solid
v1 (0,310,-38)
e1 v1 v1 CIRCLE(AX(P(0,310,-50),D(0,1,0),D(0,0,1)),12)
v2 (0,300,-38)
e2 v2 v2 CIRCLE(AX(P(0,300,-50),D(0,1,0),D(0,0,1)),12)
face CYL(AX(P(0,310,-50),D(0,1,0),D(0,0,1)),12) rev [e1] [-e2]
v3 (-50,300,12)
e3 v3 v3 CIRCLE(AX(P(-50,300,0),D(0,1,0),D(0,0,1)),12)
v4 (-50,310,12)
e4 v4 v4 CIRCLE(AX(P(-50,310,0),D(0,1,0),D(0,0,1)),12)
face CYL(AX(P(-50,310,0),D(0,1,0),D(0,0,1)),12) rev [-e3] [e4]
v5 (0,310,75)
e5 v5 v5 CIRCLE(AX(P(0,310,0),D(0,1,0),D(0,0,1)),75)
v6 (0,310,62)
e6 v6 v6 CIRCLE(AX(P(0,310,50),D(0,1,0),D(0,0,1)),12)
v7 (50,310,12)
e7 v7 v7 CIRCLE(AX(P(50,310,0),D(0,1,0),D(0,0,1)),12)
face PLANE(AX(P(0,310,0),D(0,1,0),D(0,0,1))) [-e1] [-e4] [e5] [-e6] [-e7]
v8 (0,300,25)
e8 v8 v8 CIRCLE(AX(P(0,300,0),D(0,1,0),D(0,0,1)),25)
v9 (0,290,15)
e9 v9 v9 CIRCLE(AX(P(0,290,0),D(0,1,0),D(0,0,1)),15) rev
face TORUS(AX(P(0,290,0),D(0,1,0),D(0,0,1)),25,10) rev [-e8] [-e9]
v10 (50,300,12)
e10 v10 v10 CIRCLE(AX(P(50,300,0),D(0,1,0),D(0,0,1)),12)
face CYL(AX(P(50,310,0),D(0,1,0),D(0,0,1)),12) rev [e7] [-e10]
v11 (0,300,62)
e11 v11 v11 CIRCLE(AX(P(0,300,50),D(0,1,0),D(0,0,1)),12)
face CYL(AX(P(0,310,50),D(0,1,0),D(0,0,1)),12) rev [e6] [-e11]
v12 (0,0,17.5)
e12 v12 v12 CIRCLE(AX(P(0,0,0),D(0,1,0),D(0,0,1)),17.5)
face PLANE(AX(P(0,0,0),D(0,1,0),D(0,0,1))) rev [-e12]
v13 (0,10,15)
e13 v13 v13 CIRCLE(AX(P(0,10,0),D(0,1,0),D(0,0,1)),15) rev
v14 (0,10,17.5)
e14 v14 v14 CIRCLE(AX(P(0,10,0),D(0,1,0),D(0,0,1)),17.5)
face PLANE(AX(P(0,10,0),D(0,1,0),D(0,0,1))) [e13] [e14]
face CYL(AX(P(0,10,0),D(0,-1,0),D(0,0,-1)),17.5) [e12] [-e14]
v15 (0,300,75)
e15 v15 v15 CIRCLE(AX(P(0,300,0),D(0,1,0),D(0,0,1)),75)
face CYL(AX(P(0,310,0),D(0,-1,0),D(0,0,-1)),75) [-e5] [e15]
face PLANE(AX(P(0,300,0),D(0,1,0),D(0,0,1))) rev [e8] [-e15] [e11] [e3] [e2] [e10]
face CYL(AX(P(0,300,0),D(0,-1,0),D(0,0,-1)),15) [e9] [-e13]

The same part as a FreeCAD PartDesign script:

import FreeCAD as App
import Part
import Sketcher
from FreeCAD import Vector
Q = App.Units.Quantity


def edges_at(feature, points):
    """Names of the edges that pass closest to the given points."""
    edges = feature.Shape.Edges
    near = lambda p: min(range(len(edges)), key=lambda i: edges[i].distToShape(Part.Vertex(*p))[0])
    return sorted({f"Edge{near(p) + 1}" for p in points})

doc = App.newDocument("Part")
params = doc.addObject("Spreadsheet::Sheet", "Params")
for row, (alias, value) in enumerate([
    ("sketch1_diameter", "35 mm"),
    ("pad1_length", "10 mm"),
    ("sketch2_diameter", "30 mm"),
    ("pad2_length", "300 mm"),
    ("sketch3_diameter", "150 mm"),
    ("pad3_length", "10 mm"),
    ("fillet_radius", "10 mm"),
    ("sketch4_diameter", "24 mm"),
    ("hole_diameter", "24 mm"),
], start=1):
    params.set(f"A{row}", alias)
    params.set(f"B{row}", "=" + value)
    params.setAlias(f"B{row}", alias)

body = doc.addObject("PartDesign::Body", "Body")

# Sketch on XZ plane
sketch1 = body.newObject("Sketcher::SketchObject", "Sketch")
sketch1.AttachmentSupport = (doc.getObject("XZ_Plane"), [""])
sketch1.MapMode = "FlatFace"
sketch1.addGeometry(Part.Circle(Vector(0, 0, 0), Vector(0, 0, 1), 17.5), False)
sketch1.addConstraint([
    Sketcher.Constraint("Coincident", 0, 3, -1, 1),
    Sketcher.Constraint("Diameter", 0, Q("35 mm")),
])
sketch1.setExpression("Constraints[1]", "Params.sketch1_diameter")
pad1 = body.newObject("PartDesign::Pad", "Pad")
pad1.Profile = sketch1
pad1.setExpression("Length", "Params.pad1_length")
pad1.Reversed = True

# Sketch on XZ plane
sketch2 = body.newObject("Sketcher::SketchObject", "Sketch001")
sketch2.AttachmentSupport = (doc.getObject("XZ_Plane"), [""])
sketch2.MapMode = "FlatFace"
sketch2.addGeometry(Part.Circle(Vector(0, 0, 0), Vector(0, 0, 1), 15), False)
sketch2.addConstraint([
    Sketcher.Constraint("Coincident", 0, 3, -1, 1),
    Sketcher.Constraint("Diameter", 0, Q("30 mm")),
])
sketch2.setExpression("Constraints[1]", "Params.sketch2_diameter")
pad2 = body.newObject("PartDesign::Pad", "Pad001")
pad2.Profile = sketch2
pad2.setExpression("Length", "Params.pad2_length")
pad2.Reversed = True

# Sketch on XZ plane
sketch3 = body.newObject("Sketcher::SketchObject", "Sketch002")
sketch3.AttachmentSupport = (doc.getObject("XZ_Plane"), [""])
sketch3.MapMode = "FlatFace"
sketch3.AttachmentOffset = App.Placement(Vector(0, 0, -300), App.Rotation())
sketch3.addGeometry(Part.Circle(Vector(0, 0, 0), Vector(0, 0, 1), 75), False)
sketch3.addConstraint([
    Sketcher.Constraint("Coincident", 0, 3, -1, 1),
    Sketcher.Constraint("Diameter", 0, Q("150 mm")),
])
sketch3.setExpression("Constraints[1]", "Params.sketch3_diameter")
pad3 = body.newObject("PartDesign::Pad", "Pad002")
pad3.Profile = sketch3
pad3.setExpression("Length", "Params.pad3_length")
pad3.Reversed = True
doc.recompute()

fillet = body.newObject("PartDesign::Fillet", "Fillet")
fillet.Base = (pad3, edges_at(pad3, [(0, 300, -15)]))
fillet.setExpression("Radius", "Params.fillet_radius")

# Sketch on XZ plane
sketch4 = body.newObject("Sketcher::SketchObject", "Sketch003")
sketch4.AttachmentSupport = (doc.getObject("XZ_Plane"), [""])
sketch4.MapMode = "FlatFace"
sketch4.AttachmentOffset = App.Placement(Vector(0, 0, -310), App.Rotation())
sketch4.addGeometry([
    Part.Circle(Vector(0, -50, 0), Vector(0, 0, 1), 12),
    Part.Circle(Vector(50, 0, 0), Vector(0, 0, 1), 12),
    Part.Circle(Vector(0, 50, 0), Vector(0, 0, 1), 12),
    Part.Circle(Vector(-50, 0, 0), Vector(0, 0, 1), 12),
], False)
sketch4.addConstraint([
    Sketcher.Constraint("Equal", 0, 1),
    Sketcher.Constraint("Equal", 1, 2),
    Sketcher.Constraint("Equal", 2, 3),
    Sketcher.Constraint("Symmetric", 0, 3, 2, 3, -1, 1),
    Sketcher.Constraint("Symmetric", 1, 3, 3, 3, -1, 1),
    Sketcher.Constraint("PointOnObject", 0, 3, -2),
    Sketcher.Constraint("PointOnObject", 1, 3, -1),
    Sketcher.Constraint("Diameter", 0, Q("24 mm")),
    Sketcher.Constraint("DistanceY", 0, 3, -1, 1, Q("50 mm")),
    Sketcher.Constraint("DistanceX", -1, 1, 1, 3, Q("50 mm")),
])
sketch4.setExpression("Constraints[7]", "Params.sketch4_diameter")
doc.recompute()
hole = body.newObject("PartDesign::Hole", "Hole")
hole.Profile = sketch4
hole.ThreadType = "None"
hole.setExpression("Diameter", "Params.hole_diameter")
hole.DepthType = "ThroughAll"
hole.Reversed = True

doc.recompute()
